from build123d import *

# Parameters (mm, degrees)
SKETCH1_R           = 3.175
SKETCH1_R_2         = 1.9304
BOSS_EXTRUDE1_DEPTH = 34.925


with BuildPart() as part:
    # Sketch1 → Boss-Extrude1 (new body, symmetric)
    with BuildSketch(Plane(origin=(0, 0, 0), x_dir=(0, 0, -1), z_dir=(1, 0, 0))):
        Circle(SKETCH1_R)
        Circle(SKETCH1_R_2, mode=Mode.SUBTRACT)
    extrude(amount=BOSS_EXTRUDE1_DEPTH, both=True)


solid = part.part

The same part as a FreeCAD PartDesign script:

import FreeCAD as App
import Part
import Sketcher
from FreeCAD import Vector
Q = App.Units.Quantity

doc = App.newDocument("Part")
params = doc.addObject("Spreadsheet::Sheet", "Params")
for row, (alias, value) in enumerate([
    ("sketch1_diameter", "0.25 in"),
    ("sketch1_diameter2", "0.152 in"),
    ("pad1_length", "2.75 in"),
], start=1):
    params.set(f"A{row}", alias)
    params.set(f"B{row}", "=" + value)
    params.setAlias(f"B{row}", alias)

body = doc.addObject("PartDesign::Body", "Body")

sketch1 = body.newObject("Sketcher::SketchObject", "Sketch")
sketch1.AttachmentSupport = (doc.getObject("YZ_Plane"), [""])
sketch1.MapMode = "FlatFace"
sketch1.addGeometry([
    Part.Circle(Vector(0, 0, 0), Vector(0, 0, 1), 3.2),
    Part.Circle(Vector(0, 0, 0), Vector(0, 0, 1), 1.9),
], False)
sketch1.addConstraint([
    Sketcher.Constraint("Coincident", 0, 3, -1, 1),
    Sketcher.Constraint("Coincident", 1, 3, -1, 1),
    Sketcher.Constraint("Diameter", 0, Q("0.25 in")),
    Sketcher.Constraint("Diameter", 1, Q("0.152 in")),
])
sketch1.setExpression("Constraints[2]", "Params.sketch1_diameter")
sketch1.setExpression("Constraints[3]", "Params.sketch1_diameter2")
pad1 = body.newObject("PartDesign::Pad", "Pad")
pad1.Profile = sketch1
pad1.setExpression("Length", "Params.pad1_length")
pad1.Midplane = True

doc.recompute()
